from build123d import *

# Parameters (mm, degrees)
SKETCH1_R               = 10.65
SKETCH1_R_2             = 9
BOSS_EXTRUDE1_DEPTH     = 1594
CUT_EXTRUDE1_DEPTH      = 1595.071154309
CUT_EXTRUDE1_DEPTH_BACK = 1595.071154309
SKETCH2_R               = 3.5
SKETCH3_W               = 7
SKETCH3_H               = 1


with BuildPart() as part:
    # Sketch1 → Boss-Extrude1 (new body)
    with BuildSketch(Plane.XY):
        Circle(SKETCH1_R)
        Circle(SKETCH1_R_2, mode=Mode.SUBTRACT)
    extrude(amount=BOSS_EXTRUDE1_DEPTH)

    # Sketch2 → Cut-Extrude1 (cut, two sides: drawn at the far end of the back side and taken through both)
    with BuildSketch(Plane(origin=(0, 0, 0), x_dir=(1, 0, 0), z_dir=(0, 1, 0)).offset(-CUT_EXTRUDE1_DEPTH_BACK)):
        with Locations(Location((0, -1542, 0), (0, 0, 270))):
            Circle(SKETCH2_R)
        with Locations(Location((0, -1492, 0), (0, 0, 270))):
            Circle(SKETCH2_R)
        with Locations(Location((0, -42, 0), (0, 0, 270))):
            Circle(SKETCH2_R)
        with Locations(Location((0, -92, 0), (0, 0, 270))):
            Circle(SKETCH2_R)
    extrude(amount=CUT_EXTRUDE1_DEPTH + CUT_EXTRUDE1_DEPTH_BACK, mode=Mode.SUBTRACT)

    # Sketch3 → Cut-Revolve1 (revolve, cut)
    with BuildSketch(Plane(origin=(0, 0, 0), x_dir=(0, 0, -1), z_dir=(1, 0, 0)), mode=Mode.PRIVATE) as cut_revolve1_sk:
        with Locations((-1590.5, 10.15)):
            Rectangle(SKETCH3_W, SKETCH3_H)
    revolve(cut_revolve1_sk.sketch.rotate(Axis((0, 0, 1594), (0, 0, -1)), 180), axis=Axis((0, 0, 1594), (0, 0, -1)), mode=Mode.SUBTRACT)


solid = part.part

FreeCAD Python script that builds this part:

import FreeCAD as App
import Part
import Sketcher
Q = App.Units.Quantity

doc = App.newDocument("Part")
params = doc.addObject("Spreadsheet::Sheet", "Params")
for row, (alias, value) in enumerate([
    ("sketch1_diameter", "18 mm"),
    ("sketch1_diameter2", "21.3 mm"),
    ("pad1_length", "1594 mm"),
    ("sketch2_diameter", "7 mm"),
    ("sketch3_width", "1 mm"),
    ("sketch3_height", "7 mm"),
    ("groove_angle", "360 deg"),
], start=1):
    params.set(f"A{row}", alias)
    params.set(f"B{row}", "=" + value)
    params.setAlias(f"B{row}", alias)

body = doc.addObject("PartDesign::Body", "Body")

sketch1 = body.newObject("Sketcher::SketchObject", "Sketch")
sketch1.AttachmentSupport = (doc.getObject("XY_Plane"), [""])
sketch1.MapMode = "FlatFace"
sketch1.addGeometry([
    Part.Circle(App.Vector(0, 0, 0), App.Vector(0, 0, 1), 11),
    Part.Circle(App.Vector(0, 0, 0), App.Vector(0, 0, 1), 9),
], False)
sketch1.addConstraint([
    Sketcher.Constraint("Coincident", 0, 3, -1, 1),
    Sketcher.Constraint("Coincident", 1, 3, -1, 1),
    Sketcher.Constraint("Diameter", 1, Q("18 mm")),
    Sketcher.Constraint("Diameter", 0, Q("21.3 mm")),
])
sketch1.setExpression("Constraints[2]", "Params.sketch1_diameter")
sketch1.setExpression("Constraints[3]", "Params.sketch1_diameter2")
pad1 = body.newObject("PartDesign::Pad", "Pad")
pad1.Profile = sketch1
pad1.setExpression("Length", "Params.pad1_length")

sketch2 = body.newObject("Sketcher::SketchObject", "Sketch001")
sketch2.AttachmentSupport = (doc.getObject("XZ_Plane"), [""])
sketch2.MapMode = "FlatFace"
sketch2.addGeometry([
    Part.Circle(App.Vector(0, 1542, 0), App.Vector(0, 0, 1), 3.5),
    Part.Circle(App.Vector(0, 1492, 0), App.Vector(0, 0, 1), 3.5),
    Part.Circle(App.Vector(0, 42, 0), App.Vector(0, 0, 1), 3.5),
    Part.Circle(App.Vector(0, 92, 0), App.Vector(0, 0, 1), 3.5),
], False)
sketch2.addConstraint([
    Sketcher.Constraint("Equal", 0, 1),
    Sketcher.Constraint("Equal", 1, 2),
    Sketcher.Constraint("Equal", 2, 3),
    Sketcher.Constraint("PointOnObject", 0, 3, -2),
    Sketcher.Constraint("PointOnObject", 1, 3, -2),
    Sketcher.Constraint("PointOnObject", 2, 3, -2),
    Sketcher.Constraint("PointOnObject", 3, 3, -2),
    Sketcher.Constraint("Diameter", 0, Q("7 mm")),
    Sketcher.Constraint("DistanceY", -1, 1, 0, 3, Q("1542 mm")),
    Sketcher.Constraint("DistanceY", -1, 1, 1, 3, Q("1492 mm")),
    Sketcher.Constraint("DistanceY", -1, 1, 2, 3, Q("42 mm")),
    Sketcher.Constraint("DistanceY", -1, 1, 3, 3, Q("92 mm")),
])
sketch2.setExpression("Constraints[7]", "Params.sketch2_diameter")
pocket1 = body.newObject("PartDesign::Pocket", "Pocket")
pocket1.Profile = sketch2
pocket1.Type = "ThroughAll"
pocket1.Midplane = True

sketch3 = body.newObject("Sketcher::SketchObject", "Sketch002")
sketch3.AttachmentSupport = (doc.getObject("YZ_Plane"), [""])
sketch3.MapMode = "FlatFace"
sketch3.addGeometry([
    Part.LineSegment(App.Vector(10.7, 1594, 0), App.Vector(9.7, 1594, 0)),
    Part.LineSegment(App.Vector(9.7, 1594, 0), App.Vector(9.7, 1587, 0)),
    Part.LineSegment(App.Vector(9.7, 1587, 0), App.Vector(10.7, 1587, 0)),
    Part.LineSegment(App.Vector(10.7, 1587, 0), App.Vector(10.7, 1594, 0)),
], False)
sketch3.addConstraint([
    Sketcher.Constraint("Coincident", 0, 2, 1, 1),
    Sketcher.Constraint("Coincident", 1, 2, 2, 1),
    Sketcher.Constraint("Coincident", 2, 2, 3, 1),
    Sketcher.Constraint("Coincident", 3, 2, 0, 1),
    Sketcher.Constraint("Horizontal", 0),
    Sketcher.Constraint("Vertical", 1),
    Sketcher.Constraint("Horizontal", 2),
    Sketcher.Constraint("Vertical", 3),
    Sketcher.Constraint("DistanceX", 0, 2, 0, 1, Q("1 mm")),
    Sketcher.Constraint("DistanceY", 1, 2, 1, 1, Q("7 mm")),
    Sketcher.Constraint("DistanceY", -1, 1, 0, 2, Q("1594 mm")),
    Sketcher.Constraint("DistanceX", -1, 1, 0, 2, Q("9.65 mm")),
])
sketch3.setExpression("Constraints[8]", "Params.sketch3_width")
sketch3.setExpression("Constraints[9]", "Params.sketch3_height")
groove = body.newObject("PartDesign::Groove", "Groove")
groove.Profile = sketch3
groove.ReferenceAxis = (sketch3, ["V_Axis"])
groove.setExpression("Angle", "Params.groove_angle")

doc.recompute()
